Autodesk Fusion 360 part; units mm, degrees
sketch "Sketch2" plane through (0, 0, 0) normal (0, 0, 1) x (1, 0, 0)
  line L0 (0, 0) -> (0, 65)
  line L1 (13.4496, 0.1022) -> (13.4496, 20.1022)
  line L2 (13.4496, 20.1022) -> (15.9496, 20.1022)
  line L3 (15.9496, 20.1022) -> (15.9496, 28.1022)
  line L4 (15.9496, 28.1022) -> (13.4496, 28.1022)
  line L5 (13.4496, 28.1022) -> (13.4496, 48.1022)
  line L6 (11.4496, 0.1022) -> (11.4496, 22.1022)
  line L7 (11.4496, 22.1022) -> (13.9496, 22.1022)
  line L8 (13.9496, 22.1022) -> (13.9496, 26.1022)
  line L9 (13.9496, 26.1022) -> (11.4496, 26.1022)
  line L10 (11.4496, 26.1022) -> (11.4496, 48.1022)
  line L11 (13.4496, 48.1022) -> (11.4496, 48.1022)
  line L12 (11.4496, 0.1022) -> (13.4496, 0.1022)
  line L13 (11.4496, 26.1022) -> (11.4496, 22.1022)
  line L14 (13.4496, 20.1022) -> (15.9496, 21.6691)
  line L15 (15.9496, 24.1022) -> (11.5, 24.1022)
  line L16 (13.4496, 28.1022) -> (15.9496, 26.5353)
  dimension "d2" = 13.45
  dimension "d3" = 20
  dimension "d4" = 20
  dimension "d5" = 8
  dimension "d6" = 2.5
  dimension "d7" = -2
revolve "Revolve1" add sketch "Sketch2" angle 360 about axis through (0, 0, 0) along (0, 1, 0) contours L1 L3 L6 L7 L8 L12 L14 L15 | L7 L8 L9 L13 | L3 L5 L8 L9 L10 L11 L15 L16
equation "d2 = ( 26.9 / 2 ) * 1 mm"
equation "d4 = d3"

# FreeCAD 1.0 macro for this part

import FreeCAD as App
import Part
import Sketcher

doc = App.newDocument("Part")
body = doc.addObject("PartDesign::Body", "Body")

sketch1 = body.newObject("Sketcher::SketchObject", "Sketch")
sketch1.AttachmentSupport = (doc.getObject("XY_Plane"), [""])
sketch1.MapMode = "FlatFace"
sketch1.addGeometry([
    Part.LineSegment(App.Vector(11.4, 0.1, 0), App.Vector(13.4, 0.1, 0)),
    Part.LineSegment(App.Vector(13.4, 0.1, 0), App.Vector(13.4, 20.1, 0)),
    Part.LineSegment(App.Vector(13.4, 20.1, 0), App.Vector(15.9, 21.7, 0)),
    Part.LineSegment(App.Vector(15.9, 21.7, 0), App.Vector(15.9, 26.5, 0)),
    Part.LineSegment(App.Vector(15.9, 26.5, 0), App.Vector(13.4, 28.1, 0)),
    Part.LineSegment(App.Vector(13.4, 28.1, 0), App.Vector(13.4, 48.1, 0)),
    Part.LineSegment(App.Vector(13.4, 48.1, 0), App.Vector(11.4, 48.1, 0)),
    Part.LineSegment(App.Vector(11.4, 48.1, 0), App.Vector(11.4, 0.1, 0)),
], False)
sketch1.addConstraint([
    Sketcher.Constraint("Coincident", 0, 2, 1, 1),
    Sketcher.Constraint("Coincident", 1, 2, 2, 1),
    Sketcher.Constraint("Coincident", 2, 2, 3, 1),
    Sketcher.Constraint("Coincident", 3, 2, 4, 1),
    Sketcher.Constraint("Coincident", 4, 2, 5, 1),
    Sketcher.Constraint("Coincident", 5, 2, 6, 1),
    Sketcher.Constraint("Coincident", 6, 2, 7, 1),
    Sketcher.Constraint("Coincident", 7, 2, 0, 1),
    Sketcher.Constraint("Horizontal", 0),
    Sketcher.Constraint("Vertical", 1),
    Sketcher.Constraint("Vertical", 3),
    Sketcher.Constraint("Vertical", 5),
    Sketcher.Constraint("Horizontal", 6),
    Sketcher.Constraint("Vertical", 7),
    Sketcher.Constraint("Vertical", 1, 2, 4, 2),
    Sketcher.Constraint("Equal", 1, 5),
    Sketcher.Constraint("Equal", 2, 4),
    Sketcher.Constraint("DistanceX", 0, 1, 0, 2, 2.0),
    Sketcher.Constraint("DistanceY", 1, 1, 1, 2, 20.0),
    Sketcher.Constraint("DistanceY", 1, 2, 4, 2, 8.0),
    Sketcher.Constraint("DistanceX", 1, 2, 2, 2, 2.5),
    Sketcher.Constraint("DistanceX", -1, 1, 0, 2, 13.4496),
    Sketcher.Constraint("DistanceY", 3, 1, 3, 2, 4.8662),
    Sketcher.Constraint("DistanceY", -1, 1, 2, 2, 21.669),
])
revolution = body.newObject("PartDesign::Revolution", "Revolution")
revolution.Profile = sketch1
revolution.ReferenceAxis = (sketch1, ["V_Axis"])
revolution.Angle = 360

doc.recompute()
